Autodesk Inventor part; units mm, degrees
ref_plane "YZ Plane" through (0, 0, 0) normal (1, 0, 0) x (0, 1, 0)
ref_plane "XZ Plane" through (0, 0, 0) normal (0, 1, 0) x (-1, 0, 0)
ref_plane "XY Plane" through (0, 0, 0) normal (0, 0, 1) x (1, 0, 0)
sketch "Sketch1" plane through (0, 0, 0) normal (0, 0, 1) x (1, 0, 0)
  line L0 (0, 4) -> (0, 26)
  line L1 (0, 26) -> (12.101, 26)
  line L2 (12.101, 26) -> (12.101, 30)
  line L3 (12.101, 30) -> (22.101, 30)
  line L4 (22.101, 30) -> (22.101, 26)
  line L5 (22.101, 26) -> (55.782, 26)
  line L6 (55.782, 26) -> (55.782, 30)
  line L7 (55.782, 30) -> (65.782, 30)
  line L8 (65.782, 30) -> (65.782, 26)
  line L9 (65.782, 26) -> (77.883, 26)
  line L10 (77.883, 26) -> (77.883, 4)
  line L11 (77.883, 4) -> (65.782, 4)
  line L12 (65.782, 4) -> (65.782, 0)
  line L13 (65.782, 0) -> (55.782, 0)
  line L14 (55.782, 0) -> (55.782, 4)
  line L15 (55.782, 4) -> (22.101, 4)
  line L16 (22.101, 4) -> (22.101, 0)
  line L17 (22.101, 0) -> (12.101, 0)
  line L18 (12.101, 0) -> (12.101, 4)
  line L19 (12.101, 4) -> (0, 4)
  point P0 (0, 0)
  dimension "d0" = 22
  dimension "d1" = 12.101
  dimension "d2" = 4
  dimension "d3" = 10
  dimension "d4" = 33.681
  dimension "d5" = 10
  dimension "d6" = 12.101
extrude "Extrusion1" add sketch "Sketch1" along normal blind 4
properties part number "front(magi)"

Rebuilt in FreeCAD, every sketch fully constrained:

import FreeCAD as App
import Part
import Sketcher
Q = App.Units.Quantity


def add_polygon(sketch, points):
    """Adds a closed chain of lines whose ends are joined by coincident constraints."""
    first, n = sketch.GeometryCount, len(points)
    for a, b in zip(points, points[1:] + points[:1]):
        sketch.addGeometry(Part.LineSegment(App.Vector(*a, 0), App.Vector(*b, 0)), False)
    for i in range(n):
        sketch.addConstraint(Sketcher.Constraint("Coincident", first + i, 2, first + (i + 1) % n, 1))

doc = App.newDocument("Part")
body = doc.addObject("PartDesign::Body", "Body")

sketch1 = body.newObject("Sketcher::SketchObject", "Sketch")
sketch1.AttachmentSupport = (doc.getObject("XY_Plane"), [""])
sketch1.MapMode = "FlatFace"
add_polygon(sketch1, [(0, 26), (0, 4), (12.101, 4), (12.101, 0), (22.101, 0), (22.101, 4), (55.782, 4), (55.782, 0), (65.782, 0), (65.782, 4), (77.883, 4), (77.883, 26), (65.782, 26), (65.782, 30), (55.782, 30), (55.782, 26), (22.101, 26), (22.101, 30), (12.101, 30), (12.101, 26)])
sketch1.addConstraint([
    Sketcher.Constraint("Vertical", 0),
    Sketcher.Constraint("Horizontal", 1),
    Sketcher.Constraint("Vertical", 2),
    Sketcher.Constraint("Horizontal", 3),
    Sketcher.Constraint("Vertical", 4),
    Sketcher.Constraint("Horizontal", 5),
    Sketcher.Constraint("Vertical", 6),
    Sketcher.Constraint("Horizontal", 7),
    Sketcher.Constraint("Vertical", 8),
    Sketcher.Constraint("Horizontal", 9),
    Sketcher.Constraint("Vertical", 10),
    Sketcher.Constraint("Horizontal", 11),
    Sketcher.Constraint("Vertical", 12),
    Sketcher.Constraint("Horizontal", 13),
    Sketcher.Constraint("Vertical", 14),
    Sketcher.Constraint("Horizontal", 15),
    Sketcher.Constraint("Vertical", 16),
    Sketcher.Constraint("Horizontal", 17),
    Sketcher.Constraint("Vertical", 18),
    Sketcher.Constraint("Horizontal", 19),
    Sketcher.Constraint("PointOnObject", 0, 2, -2),
    Sketcher.Constraint("PointOnObject", 2, 2, -1),
    Sketcher.Constraint("PointOnObject", 6, 2, -1),
    Sketcher.Constraint("Horizontal", 1, 2, 4, 2),
    Sketcher.Constraint("Horizontal", 5, 2, 8, 2),
    Sketcher.Constraint("Horizontal", 11, 2, 14, 2),
    Sketcher.Constraint("Horizontal", 13, 2, 16, 2),
    Sketcher.Constraint("Horizontal", 15, 2, 18, 2),
    Sketcher.Constraint("Vertical", 8, 2, 11, 2),
    Sketcher.Constraint("Vertical", 6, 2, 13, 2),
    Sketcher.Constraint("Vertical", 4, 2, 15, 2),
    Sketcher.Constraint("Vertical", 2, 2, 17, 2),
    Sketcher.Constraint("Equal", 3, 7),
    Sketcher.Constraint("Equal", 1, 9),
    Sketcher.Constraint("Equal", 8, 12),
    Sketcher.Constraint("DistanceX", 3, 1, 3, 2, Q("10 mm")),
    Sketcher.Constraint("DistanceY", 0, 2, 0, 1, Q("22 mm")),
    Sketcher.Constraint("DistanceY", 2, 2, 2, 1, Q("4 mm")),
    Sketcher.Constraint("DistanceX", 1, 1, 1, 2, Q("12.101 mm")),
    Sketcher.Constraint("DistanceX", 5, 1, 5, 2, Q("33.681 mm")),
])
pad1 = body.newObject("PartDesign::Pad", "Pad")
pad1.Profile = sketch1
pad1.Length = 4

doc.recompute()
